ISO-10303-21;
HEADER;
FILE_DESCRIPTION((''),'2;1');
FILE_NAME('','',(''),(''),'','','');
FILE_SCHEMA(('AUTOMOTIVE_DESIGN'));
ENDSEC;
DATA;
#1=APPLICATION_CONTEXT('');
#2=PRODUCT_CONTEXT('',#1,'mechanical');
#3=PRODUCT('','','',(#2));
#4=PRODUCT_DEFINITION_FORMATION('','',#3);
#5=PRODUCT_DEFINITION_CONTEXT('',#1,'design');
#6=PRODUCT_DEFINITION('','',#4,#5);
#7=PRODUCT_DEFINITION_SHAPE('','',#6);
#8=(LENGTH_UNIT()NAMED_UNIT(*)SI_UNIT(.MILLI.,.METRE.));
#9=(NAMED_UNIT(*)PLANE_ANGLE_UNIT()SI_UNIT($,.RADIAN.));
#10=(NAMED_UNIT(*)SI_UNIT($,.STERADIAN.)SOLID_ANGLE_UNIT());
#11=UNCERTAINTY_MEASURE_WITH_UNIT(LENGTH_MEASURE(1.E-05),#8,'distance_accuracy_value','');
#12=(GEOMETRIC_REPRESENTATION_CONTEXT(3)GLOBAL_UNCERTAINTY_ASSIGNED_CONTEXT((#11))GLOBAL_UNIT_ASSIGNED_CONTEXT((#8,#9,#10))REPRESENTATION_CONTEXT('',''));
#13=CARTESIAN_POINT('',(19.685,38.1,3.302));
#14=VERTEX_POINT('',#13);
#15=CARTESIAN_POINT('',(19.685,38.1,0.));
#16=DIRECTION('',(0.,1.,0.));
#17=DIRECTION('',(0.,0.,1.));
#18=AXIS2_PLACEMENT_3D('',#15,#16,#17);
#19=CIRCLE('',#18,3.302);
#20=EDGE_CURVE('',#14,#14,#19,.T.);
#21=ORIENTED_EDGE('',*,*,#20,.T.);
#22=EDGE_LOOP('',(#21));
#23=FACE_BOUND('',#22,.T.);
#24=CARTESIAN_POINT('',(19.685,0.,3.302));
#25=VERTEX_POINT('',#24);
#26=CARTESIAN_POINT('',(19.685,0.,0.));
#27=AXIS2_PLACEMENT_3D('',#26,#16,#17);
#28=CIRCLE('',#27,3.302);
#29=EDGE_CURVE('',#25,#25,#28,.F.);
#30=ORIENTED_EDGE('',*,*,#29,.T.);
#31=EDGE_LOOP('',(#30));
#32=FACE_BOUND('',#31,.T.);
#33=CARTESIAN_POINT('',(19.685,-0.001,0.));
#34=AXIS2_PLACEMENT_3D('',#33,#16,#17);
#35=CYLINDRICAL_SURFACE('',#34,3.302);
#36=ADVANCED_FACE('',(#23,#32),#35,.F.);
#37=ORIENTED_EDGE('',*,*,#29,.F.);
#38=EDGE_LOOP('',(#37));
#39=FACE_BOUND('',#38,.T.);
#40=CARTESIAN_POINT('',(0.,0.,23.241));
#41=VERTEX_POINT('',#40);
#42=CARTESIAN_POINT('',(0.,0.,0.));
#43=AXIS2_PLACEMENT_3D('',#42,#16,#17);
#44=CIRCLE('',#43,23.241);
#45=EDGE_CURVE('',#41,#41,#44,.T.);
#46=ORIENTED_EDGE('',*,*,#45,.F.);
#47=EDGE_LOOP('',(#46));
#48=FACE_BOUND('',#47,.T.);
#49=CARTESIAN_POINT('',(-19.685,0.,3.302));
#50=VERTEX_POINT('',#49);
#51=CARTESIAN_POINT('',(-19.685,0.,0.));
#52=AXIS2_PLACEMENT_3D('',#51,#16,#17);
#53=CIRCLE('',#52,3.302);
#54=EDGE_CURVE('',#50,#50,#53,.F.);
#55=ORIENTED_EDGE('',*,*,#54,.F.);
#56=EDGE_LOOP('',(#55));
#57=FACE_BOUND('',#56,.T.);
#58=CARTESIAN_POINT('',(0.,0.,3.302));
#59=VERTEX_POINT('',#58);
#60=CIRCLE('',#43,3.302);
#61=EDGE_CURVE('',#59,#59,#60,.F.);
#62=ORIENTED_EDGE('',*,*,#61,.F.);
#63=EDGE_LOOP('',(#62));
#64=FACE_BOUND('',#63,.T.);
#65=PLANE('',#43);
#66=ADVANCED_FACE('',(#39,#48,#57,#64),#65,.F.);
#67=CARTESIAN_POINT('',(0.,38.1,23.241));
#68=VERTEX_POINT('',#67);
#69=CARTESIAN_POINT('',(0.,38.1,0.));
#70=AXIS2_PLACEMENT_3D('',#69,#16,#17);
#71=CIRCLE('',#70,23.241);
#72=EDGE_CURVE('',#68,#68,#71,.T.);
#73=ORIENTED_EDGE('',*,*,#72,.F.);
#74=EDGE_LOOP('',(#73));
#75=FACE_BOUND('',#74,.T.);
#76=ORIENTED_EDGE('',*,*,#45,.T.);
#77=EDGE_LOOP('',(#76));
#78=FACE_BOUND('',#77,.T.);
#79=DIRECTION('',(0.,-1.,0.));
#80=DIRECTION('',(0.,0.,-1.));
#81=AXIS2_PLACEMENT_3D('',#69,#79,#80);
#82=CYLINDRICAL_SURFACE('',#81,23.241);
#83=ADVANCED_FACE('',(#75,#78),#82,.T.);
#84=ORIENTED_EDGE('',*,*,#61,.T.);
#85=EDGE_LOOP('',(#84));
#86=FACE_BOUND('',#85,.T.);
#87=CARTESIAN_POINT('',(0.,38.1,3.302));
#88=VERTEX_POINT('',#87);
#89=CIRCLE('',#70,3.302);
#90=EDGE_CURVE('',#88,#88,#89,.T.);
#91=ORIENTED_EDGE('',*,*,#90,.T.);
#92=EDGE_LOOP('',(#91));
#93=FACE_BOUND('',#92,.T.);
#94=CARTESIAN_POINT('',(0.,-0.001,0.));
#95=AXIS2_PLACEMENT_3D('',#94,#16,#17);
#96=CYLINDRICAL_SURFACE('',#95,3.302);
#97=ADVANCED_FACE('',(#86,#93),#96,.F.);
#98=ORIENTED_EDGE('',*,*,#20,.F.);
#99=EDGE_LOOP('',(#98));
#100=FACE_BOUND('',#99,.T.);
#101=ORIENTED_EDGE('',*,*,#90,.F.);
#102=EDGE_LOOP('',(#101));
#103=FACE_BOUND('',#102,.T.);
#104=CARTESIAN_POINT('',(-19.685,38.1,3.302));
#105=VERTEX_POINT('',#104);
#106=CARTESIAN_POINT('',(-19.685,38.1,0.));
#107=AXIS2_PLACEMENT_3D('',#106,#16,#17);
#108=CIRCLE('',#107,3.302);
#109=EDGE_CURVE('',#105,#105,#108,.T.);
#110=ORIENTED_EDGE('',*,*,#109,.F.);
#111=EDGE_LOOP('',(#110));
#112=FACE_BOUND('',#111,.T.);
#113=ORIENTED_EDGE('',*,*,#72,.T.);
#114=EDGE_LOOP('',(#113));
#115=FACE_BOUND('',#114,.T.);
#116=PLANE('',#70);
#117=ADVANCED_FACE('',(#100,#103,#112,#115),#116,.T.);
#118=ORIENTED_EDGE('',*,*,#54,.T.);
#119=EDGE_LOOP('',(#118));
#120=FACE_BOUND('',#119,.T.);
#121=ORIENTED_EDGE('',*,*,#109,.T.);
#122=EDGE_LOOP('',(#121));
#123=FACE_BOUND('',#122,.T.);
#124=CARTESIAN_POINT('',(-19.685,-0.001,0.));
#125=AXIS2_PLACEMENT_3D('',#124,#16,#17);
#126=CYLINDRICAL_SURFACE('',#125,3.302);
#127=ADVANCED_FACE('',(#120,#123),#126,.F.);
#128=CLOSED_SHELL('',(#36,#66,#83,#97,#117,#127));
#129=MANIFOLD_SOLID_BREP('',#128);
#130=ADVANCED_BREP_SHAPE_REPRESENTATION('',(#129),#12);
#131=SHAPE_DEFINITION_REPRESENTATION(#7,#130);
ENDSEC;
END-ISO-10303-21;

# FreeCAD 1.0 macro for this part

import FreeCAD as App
import Part
import Sketcher

V = App.Vector
Q = App.Units.Quantity

doc = App.newDocument("Part")
params = doc.addObject("Spreadsheet::Sheet", "Params")
for row, (alias, value) in enumerate([
    ("sketch1_diameter", "1.83 in"),
    ("pad1_length", "1.5 in"),
    ("sketch2_diameter", "0.26 in"),
    ("sketch3_diameter", "0.26 in"),
    ("sketch4_diameter", "0.26 in"),
], start=1):
    params.set(f"A{row}", alias)
    params.set(f"B{row}", "=" + value)
    params.setAlias(f"B{row}", alias)

body = doc.addObject("PartDesign::Body", "Body")

# Sketch on XZ plane
sketch1 = body.newObject("Sketcher::SketchObject", "Sketch")
sketch1.AttachmentSupport = (doc.getObject("XZ_Plane"), [""])
sketch1.MapMode = "FlatFace"
sketch1.addGeometry(Part.Circle(V(0, 0, 0), V(0, 0, 1), 23), False)
sketch1.addConstraint([
    Sketcher.Constraint("Coincident", 0, 3, -1, 1),
    Sketcher.Constraint("Diameter", 0, Q("1.83 in")),
])
sketch1.setExpression("Constraints[1]", "Params.sketch1_diameter")
pad1 = body.newObject("PartDesign::Pad", "Pad")
pad1.Profile = sketch1
pad1.setExpression("Length", "Params.pad1_length")
pad1.Reversed = True

# Sketch on XZ plane
sketch2 = body.newObject("Sketcher::SketchObject", "Sketch001")
sketch2.AttachmentSupport = (doc.getObject("XZ_Plane"), [""])
sketch2.MapMode = "FlatFace"
sketch2.AttachmentOffset = App.Placement(V(0, 0, -1.5 * 25.4), App.Rotation())
sketch2.addGeometry(Part.Circle(V(19.7, 0, 0), V(0, 0, 1), 3.3), False)
sketch2.addConstraint([
    Sketcher.Constraint("PointOnObject", 0, 3, -1),
    Sketcher.Constraint("Diameter", 0, Q("0.26 in")),
    Sketcher.Constraint("DistanceX", -1, 1, 0, 3, Q("0.775 in")),
])
sketch2.setExpression("Constraints[1]", "Params.sketch2_diameter")
pocket1 = body.newObject("PartDesign::Pocket", "Pocket")
pocket1.Profile = sketch2
pocket1.Type = "UpToFirst"
pocket1.Reversed = True

# Sketch on XZ plane
sketch3 = body.newObject("Sketcher::SketchObject", "Sketch002")
sketch3.AttachmentSupport = (doc.getObject("XZ_Plane"), [""])
sketch3.MapMode = "FlatFace"
sketch3.AttachmentOffset = App.Placement(V(0, 0, -1.5 * 25.4), App.Rotation())
sketch3.addGeometry(Part.Circle(V(-19.7, 0, 0), V(0, 0, 1), 3.3), False)
sketch3.addConstraint([
    Sketcher.Constraint("PointOnObject", 0, 3, -1),
    Sketcher.Constraint("Diameter", 0, Q("0.26 in")),
    Sketcher.Constraint("DistanceX", 0, 3, -1, 1, Q("0.775 in")),
])
sketch3.setExpression("Constraints[1]", "Params.sketch3_diameter")
pocket2 = body.newObject("PartDesign::Pocket", "Pocket001")
pocket2.Profile = sketch3
pocket2.Type = "UpToFirst"
pocket2.Reversed = True

# Sketch on XZ plane
sketch4 = body.newObject("Sketcher::SketchObject", "Sketch003")
sketch4.AttachmentSupport = (doc.getObject("XZ_Plane"), [""])
sketch4.MapMode = "FlatFace"
sketch4.AttachmentOffset = App.Placement(V(0, 0, -1.5 * 25.4), App.Rotation())
sketch4.addGeometry(Part.Circle(V(0, 0, 0), V(0, 0, 1), 3.3), False)
sketch4.addConstraint([
    Sketcher.Constraint("Coincident", 0, 3, -1, 1),
    Sketcher.Constraint("Diameter", 0, Q("0.26 in")),
])
sketch4.setExpression("Constraints[1]", "Params.sketch4_diameter")
pocket3 = body.newObject("PartDesign::Pocket", "Pocket002")
pocket3.Profile = sketch4
pocket3.Type = "UpToFirst"
pocket3.Reversed = True

doc.recompute()
